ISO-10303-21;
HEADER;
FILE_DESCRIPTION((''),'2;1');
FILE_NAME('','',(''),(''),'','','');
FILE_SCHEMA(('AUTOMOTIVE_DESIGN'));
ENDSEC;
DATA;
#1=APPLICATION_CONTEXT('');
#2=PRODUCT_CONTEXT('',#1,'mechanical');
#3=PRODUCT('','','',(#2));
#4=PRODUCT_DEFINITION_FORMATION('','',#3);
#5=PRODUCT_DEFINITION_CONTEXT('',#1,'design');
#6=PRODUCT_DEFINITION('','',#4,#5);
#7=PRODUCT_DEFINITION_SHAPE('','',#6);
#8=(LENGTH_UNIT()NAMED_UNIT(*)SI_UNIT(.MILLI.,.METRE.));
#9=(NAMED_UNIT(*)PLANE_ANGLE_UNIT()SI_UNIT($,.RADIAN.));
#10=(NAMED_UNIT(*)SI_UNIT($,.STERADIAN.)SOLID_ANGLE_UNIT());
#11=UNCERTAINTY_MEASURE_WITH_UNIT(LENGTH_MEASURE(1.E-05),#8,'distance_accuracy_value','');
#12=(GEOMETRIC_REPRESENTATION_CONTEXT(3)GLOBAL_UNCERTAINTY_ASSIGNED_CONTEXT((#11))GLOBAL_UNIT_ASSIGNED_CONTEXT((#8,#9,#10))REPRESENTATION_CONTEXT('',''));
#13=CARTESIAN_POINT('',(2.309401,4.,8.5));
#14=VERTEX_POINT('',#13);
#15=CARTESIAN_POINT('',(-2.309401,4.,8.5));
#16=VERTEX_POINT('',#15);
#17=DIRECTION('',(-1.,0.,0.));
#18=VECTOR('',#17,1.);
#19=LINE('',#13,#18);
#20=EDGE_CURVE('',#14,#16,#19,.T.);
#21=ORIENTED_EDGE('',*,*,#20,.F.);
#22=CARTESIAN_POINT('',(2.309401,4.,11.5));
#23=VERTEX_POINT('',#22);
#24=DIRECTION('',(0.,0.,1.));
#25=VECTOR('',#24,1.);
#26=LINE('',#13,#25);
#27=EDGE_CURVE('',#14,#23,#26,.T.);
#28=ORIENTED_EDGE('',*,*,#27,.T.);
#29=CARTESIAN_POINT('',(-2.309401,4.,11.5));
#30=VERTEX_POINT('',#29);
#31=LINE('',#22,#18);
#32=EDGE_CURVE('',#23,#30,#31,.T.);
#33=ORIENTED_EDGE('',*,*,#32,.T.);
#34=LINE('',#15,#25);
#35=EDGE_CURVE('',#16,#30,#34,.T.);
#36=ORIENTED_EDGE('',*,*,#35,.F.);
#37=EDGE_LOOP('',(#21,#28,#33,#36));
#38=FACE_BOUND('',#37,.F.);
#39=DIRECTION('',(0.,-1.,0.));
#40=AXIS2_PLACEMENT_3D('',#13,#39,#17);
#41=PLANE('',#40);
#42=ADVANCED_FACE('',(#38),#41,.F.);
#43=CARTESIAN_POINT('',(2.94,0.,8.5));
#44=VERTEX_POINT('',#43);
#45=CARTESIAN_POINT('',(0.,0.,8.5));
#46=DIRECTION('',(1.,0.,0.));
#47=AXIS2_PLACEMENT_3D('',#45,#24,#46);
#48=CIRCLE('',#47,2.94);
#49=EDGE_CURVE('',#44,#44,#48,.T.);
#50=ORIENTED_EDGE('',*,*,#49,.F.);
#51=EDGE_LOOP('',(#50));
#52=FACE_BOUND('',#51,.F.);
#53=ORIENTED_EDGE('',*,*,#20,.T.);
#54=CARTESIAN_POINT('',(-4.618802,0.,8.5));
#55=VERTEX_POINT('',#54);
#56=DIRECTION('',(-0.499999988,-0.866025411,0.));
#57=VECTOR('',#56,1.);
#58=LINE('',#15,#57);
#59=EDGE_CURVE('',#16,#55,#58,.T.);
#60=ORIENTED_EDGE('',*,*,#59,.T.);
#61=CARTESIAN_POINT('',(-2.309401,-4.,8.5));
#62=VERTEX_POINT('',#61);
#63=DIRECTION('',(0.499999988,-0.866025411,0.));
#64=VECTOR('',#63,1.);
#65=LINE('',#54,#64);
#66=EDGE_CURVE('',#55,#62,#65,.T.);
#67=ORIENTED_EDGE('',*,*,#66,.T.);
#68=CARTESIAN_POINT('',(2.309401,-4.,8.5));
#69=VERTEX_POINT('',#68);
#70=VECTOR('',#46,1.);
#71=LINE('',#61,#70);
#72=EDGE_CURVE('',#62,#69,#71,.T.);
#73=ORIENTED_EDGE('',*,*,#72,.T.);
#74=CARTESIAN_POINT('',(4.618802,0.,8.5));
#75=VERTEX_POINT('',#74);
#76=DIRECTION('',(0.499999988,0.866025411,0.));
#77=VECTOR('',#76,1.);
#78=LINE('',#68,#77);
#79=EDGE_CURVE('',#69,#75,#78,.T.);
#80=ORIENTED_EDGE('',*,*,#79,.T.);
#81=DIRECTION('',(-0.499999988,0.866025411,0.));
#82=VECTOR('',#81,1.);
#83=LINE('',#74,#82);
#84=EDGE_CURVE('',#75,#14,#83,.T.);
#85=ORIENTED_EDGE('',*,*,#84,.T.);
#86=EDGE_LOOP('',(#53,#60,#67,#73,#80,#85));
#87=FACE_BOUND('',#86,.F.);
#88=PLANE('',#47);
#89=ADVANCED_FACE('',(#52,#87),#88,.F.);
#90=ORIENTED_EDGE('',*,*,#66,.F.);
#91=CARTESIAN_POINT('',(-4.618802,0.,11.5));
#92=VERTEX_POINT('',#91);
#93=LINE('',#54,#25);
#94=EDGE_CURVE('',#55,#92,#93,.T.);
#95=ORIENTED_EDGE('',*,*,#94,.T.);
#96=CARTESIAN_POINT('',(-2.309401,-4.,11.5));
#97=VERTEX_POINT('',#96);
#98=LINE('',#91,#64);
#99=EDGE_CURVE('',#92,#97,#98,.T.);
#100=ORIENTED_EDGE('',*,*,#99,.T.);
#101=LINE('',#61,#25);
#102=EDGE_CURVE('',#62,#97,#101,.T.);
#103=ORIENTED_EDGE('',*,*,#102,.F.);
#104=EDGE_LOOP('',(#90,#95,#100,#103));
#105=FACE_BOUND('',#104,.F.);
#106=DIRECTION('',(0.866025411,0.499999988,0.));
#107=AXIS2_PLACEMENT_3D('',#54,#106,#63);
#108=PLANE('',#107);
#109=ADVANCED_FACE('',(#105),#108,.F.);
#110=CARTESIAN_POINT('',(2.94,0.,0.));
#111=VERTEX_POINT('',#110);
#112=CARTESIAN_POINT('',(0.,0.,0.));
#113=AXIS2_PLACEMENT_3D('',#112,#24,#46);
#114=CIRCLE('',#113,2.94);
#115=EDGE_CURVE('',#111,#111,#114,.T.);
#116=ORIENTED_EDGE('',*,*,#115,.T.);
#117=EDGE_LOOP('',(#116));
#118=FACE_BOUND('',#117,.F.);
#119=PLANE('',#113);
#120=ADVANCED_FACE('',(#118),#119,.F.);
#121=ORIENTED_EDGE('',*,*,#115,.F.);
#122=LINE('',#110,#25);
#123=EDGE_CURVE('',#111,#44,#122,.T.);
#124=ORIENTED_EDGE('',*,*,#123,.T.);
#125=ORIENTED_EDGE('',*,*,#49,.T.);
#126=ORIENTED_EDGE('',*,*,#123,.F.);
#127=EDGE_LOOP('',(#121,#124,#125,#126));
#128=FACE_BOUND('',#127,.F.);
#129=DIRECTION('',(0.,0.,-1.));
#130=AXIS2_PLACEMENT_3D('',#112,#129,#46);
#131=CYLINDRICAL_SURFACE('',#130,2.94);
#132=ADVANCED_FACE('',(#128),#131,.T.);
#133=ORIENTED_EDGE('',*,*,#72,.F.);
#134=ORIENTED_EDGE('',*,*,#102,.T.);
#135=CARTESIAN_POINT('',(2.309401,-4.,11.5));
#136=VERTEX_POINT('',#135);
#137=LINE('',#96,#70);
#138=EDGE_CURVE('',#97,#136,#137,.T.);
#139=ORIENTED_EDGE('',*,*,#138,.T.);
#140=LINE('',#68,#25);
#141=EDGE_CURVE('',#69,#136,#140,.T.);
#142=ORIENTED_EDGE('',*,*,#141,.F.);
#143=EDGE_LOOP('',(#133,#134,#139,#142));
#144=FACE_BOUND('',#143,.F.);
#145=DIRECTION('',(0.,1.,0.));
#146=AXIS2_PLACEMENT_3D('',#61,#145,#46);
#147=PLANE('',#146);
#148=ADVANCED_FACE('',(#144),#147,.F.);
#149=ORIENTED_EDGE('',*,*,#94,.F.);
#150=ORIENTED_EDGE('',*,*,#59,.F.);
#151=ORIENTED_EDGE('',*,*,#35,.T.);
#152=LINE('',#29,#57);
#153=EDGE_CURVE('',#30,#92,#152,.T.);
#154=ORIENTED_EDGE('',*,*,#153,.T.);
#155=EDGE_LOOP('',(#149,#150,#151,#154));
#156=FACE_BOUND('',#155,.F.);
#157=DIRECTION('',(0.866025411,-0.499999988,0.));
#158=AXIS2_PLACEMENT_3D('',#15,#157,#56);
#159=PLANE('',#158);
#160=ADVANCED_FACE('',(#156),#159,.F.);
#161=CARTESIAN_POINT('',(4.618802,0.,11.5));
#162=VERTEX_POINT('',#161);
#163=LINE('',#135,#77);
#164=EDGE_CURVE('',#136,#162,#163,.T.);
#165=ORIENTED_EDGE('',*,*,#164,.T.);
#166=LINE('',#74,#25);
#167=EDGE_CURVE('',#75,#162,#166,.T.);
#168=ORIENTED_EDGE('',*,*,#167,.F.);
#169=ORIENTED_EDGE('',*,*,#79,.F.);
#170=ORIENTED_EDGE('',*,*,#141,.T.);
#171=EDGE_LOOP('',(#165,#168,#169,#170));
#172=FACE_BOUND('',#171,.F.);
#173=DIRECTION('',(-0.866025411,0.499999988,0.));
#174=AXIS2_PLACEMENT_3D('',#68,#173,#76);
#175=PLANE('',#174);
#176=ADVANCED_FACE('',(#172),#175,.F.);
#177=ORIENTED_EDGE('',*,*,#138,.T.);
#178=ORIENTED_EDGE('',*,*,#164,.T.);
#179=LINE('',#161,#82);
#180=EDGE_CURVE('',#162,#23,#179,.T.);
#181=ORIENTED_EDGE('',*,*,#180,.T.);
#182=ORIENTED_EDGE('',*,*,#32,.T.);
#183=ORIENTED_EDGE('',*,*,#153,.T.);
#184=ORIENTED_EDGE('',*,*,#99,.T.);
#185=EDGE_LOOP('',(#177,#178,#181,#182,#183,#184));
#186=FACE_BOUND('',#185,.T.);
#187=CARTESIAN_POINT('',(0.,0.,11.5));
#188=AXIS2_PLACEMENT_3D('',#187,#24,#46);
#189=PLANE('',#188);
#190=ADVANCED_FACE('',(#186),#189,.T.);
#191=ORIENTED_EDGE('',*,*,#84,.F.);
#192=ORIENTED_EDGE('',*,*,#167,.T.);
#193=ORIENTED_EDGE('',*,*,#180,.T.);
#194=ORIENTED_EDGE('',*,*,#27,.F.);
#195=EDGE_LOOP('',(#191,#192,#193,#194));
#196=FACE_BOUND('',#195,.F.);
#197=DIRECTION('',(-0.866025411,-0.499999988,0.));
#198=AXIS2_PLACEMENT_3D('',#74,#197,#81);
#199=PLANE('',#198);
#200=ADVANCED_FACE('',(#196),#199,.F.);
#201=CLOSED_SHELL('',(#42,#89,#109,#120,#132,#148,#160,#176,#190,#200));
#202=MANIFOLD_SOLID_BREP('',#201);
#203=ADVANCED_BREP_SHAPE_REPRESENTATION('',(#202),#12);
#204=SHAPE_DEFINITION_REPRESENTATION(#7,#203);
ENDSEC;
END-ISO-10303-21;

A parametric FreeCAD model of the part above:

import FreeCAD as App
import Part
import Sketcher
from FreeCAD import Vector
Q = App.Units.Quantity

doc = App.newDocument("Part")
body = doc.addObject("PartDesign::Body", "Body")

# Sketch on XY plane
sketch1 = body.newObject("Sketcher::SketchObject", "Sketch")
sketch1.AttachmentSupport = (doc.getObject("XY_Plane"), [""])
sketch1.MapMode = "FlatFace"
sketch1.addGeometry(Part.Circle(Vector(0, 0, 0), Vector(0, 0, 1), 2.94), False)
sketch1.addConstraint([
    Sketcher.Constraint("Coincident", 0, 3, -1, 1),
    Sketcher.Constraint("Diameter", 0, 5.88),
])
pad1 = body.newObject("PartDesign::Pad", "Pad")
pad1.Profile = sketch1
pad1.Length = 8.5

# Sketch on XY plane
sketch2 = body.newObject("Sketcher::SketchObject", "Sketch001")
sketch2.AttachmentSupport = (doc.getObject("XY_Plane"), [""])
sketch2.MapMode = "FlatFace"
sketch2.AttachmentOffset = App.Placement(Vector(0, 0, 8.5), App.Rotation())
sketch2.addGeometry([
    Part.LineSegment(Vector(-2.309401, 4, 0), Vector(-4.618802, 0, 0)),  # 0
    Part.LineSegment(Vector(-4.618802, 0, 0), Vector(-2.309401, -4, 0)),  # 1
    Part.LineSegment(Vector(-2.309401, -4, 0), Vector(2.309401, -4, 0)),  # 2
    Part.LineSegment(Vector(2.309401, -4, 0), Vector(4.618802, 0, 0)),  # 3
    Part.LineSegment(Vector(4.618802, 0, 0), Vector(2.309401, 4, 0)),  # 4
    Part.LineSegment(Vector(2.309401, 4, 0), Vector(-2.309401, 4, 0)),  # 5
], False)
sketch2.addConstraint([
    Sketcher.Constraint("Coincident", 0, 2, 1, 1),
    Sketcher.Constraint("Coincident", 1, 2, 2, 1),
    Sketcher.Constraint("Coincident", 2, 2, 3, 1),
    Sketcher.Constraint("Coincident", 3, 2, 4, 1),
    Sketcher.Constraint("Coincident", 4, 2, 5, 1),
    Sketcher.Constraint("Coincident", 5, 2, 0, 1),
    Sketcher.Constraint("Horizontal", 2),
    Sketcher.Constraint("Horizontal", 5),
    Sketcher.Constraint("Symmetric", 0, 2, 3, 2, -1, 1),
    Sketcher.Constraint("Symmetric", 1, 2, 4, 2, -1, 1),
    Sketcher.Constraint("PointOnObject", 0, 2, -1),
    Sketcher.Constraint("Parallel", 0, 3),
    Sketcher.Constraint("Vertical", 2, 2, 4, 2),
    Sketcher.Constraint("Angle", 0, Q("-119.999999 deg")),
    Sketcher.Constraint("DistanceY", 1, 2, -1, 1, 4.0),
    Sketcher.Constraint("DistanceX", 2, 1, 2, 2, 4.618802),
])
pad2 = body.newObject("PartDesign::Pad", "Pad001")
pad2.Profile = sketch2
pad2.Length = 3

doc.recompute()
